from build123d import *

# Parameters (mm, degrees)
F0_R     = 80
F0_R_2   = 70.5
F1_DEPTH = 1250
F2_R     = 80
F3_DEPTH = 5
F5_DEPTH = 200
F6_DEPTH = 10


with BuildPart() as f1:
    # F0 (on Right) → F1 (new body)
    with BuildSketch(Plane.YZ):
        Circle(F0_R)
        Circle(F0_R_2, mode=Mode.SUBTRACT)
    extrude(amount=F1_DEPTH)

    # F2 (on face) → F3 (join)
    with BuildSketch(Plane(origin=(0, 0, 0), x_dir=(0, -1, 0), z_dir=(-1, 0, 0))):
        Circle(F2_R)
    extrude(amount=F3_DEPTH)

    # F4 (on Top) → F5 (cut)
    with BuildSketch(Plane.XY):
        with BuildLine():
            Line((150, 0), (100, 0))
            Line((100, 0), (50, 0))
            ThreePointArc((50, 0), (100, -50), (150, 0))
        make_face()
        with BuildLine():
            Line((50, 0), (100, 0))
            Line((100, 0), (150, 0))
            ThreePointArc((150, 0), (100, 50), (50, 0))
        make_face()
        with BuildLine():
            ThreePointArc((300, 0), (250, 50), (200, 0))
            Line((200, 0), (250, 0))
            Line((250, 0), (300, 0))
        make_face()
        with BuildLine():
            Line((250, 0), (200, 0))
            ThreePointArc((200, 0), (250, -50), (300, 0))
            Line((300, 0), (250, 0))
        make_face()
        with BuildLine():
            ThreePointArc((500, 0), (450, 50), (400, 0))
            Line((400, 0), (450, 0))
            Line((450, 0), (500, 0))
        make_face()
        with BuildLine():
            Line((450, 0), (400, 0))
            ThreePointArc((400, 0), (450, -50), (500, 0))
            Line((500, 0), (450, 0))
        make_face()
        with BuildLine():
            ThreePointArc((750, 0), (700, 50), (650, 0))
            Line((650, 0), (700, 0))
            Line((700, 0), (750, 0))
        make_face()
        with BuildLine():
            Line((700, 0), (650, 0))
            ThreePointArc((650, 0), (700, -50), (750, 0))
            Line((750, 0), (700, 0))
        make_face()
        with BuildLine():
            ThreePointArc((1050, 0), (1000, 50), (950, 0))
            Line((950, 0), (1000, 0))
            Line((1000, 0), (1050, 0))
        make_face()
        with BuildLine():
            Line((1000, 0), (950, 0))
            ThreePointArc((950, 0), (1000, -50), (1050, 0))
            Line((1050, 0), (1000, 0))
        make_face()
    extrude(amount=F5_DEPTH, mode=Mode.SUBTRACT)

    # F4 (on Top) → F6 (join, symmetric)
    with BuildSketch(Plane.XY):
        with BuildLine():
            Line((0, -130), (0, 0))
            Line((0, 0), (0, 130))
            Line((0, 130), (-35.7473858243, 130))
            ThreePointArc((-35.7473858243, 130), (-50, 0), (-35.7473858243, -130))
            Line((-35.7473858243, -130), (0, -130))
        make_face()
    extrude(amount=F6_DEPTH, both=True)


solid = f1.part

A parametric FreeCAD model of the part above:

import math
import FreeCAD as App
import Part
import Sketcher
from FreeCAD import Vector
Q = App.Units.Quantity

doc = App.newDocument("Part")
params = doc.addObject("Spreadsheet::Sheet", "Params")
for row, (alias, value) in enumerate([
    ("sketch1_diameter", "160 mm"),
    ("sketch1_diameter2", "141 mm"),
    ("pad1_length", "1250 mm"),
    ("sketch2_diameter", "160 mm"),
    ("pad2_length", "5 mm"),
    ("sketch3_diameter", "100 mm"),
    ("pocket1_length", "200 mm"),
    ("sketch4_radius", "600 mm"),
    ("sketch4_height", "260 mm"),
    ("pad3_length", "20 mm"),
], start=1):
    params.set(f"A{row}", alias)
    params.set(f"B{row}", "=" + value)
    params.setAlias(f"B{row}", alias)

body = doc.addObject("PartDesign::Body", "Body")

# Sketch on YZ plane
sketch1 = body.newObject("Sketcher::SketchObject", "Sketch")
sketch1.AttachmentSupport = (doc.getObject("YZ_Plane"), [""])
sketch1.MapMode = "FlatFace"
sketch1.addGeometry(Part.Circle(Vector(0, 0, 0), Vector(0, 0, 1), 80), False)
sketch1.addGeometry(Part.Circle(Vector(0, 0, 0), Vector(0, 0, 1), 70), False)
sketch1.addConstraint(Sketcher.Constraint("Coincident", 0, 3, -1, 1))
sketch1.addConstraint(Sketcher.Constraint("Coincident", 1, 3, -1, 1))
sketch1.addConstraint(Sketcher.Constraint("Diameter", 0, Q("160 mm")))
sketch1.addConstraint(Sketcher.Constraint("Diameter", 1, Q("141 mm")))
sketch1.setExpression("Constraints[2]", "Params.sketch1_diameter")
sketch1.setExpression("Constraints[3]", "Params.sketch1_diameter2")
pad1 = body.newObject("PartDesign::Pad", "Pad")
pad1.Profile = sketch1
pad1.setExpression("Length", "Params.pad1_length")

# Sketch on YZ plane
sketch2 = body.newObject("Sketcher::SketchObject", "Sketch001")
sketch2.AttachmentSupport = (doc.getObject("YZ_Plane"), [""])
sketch2.MapMode = "FlatFace"
sketch2.addGeometry(Part.Circle(Vector(0, 0, 0), Vector(0, 0, 1), 80), False)
sketch2.addConstraint(Sketcher.Constraint("Coincident", 0, 3, -1, 1))
sketch2.addConstraint(Sketcher.Constraint("Diameter", 0, Q("160 mm")))
sketch2.setExpression("Constraints[1]", "Params.sketch2_diameter")
pad2 = body.newObject("PartDesign::Pad", "Pad001")
pad2.Profile = sketch2
pad2.setExpression("Length", "Params.pad2_length")
pad2.Reversed = True

# Sketch on XY plane
sketch3 = body.newObject("Sketcher::SketchObject", "Sketch002")
sketch3.AttachmentSupport = (doc.getObject("XY_Plane"), [""])
sketch3.MapMode = "FlatFace"
sketch3.addGeometry(Part.Circle(Vector(100, 0, 0), Vector(0, 0, 1), 50), False)
sketch3.addGeometry(Part.Circle(Vector(250, 0, 0), Vector(0, 0, 1), 50), False)
sketch3.addGeometry(Part.Circle(Vector(450, 0, 0), Vector(0, 0, 1), 50), False)
sketch3.addGeometry(Part.Circle(Vector(700, 0, 0), Vector(0, 0, 1), 50), False)
sketch3.addGeometry(Part.Circle(Vector(1000, 0, 0), Vector(0, 0, 1), 50), False)
sketch3.addConstraint(Sketcher.Constraint("Equal", 0, 1))
sketch3.addConstraint(Sketcher.Constraint("Equal", 1, 2))
sketch3.addConstraint(Sketcher.Constraint("Equal", 2, 3))
sketch3.addConstraint(Sketcher.Constraint("Equal", 3, 4))
sketch3.addConstraint(Sketcher.Constraint("PointOnObject", 0, 3, -1))
sketch3.addConstraint(Sketcher.Constraint("PointOnObject", 1, 3, -1))
sketch3.addConstraint(Sketcher.Constraint("PointOnObject", 2, 3, -1))
sketch3.addConstraint(Sketcher.Constraint("PointOnObject", 3, 3, -1))
sketch3.addConstraint(Sketcher.Constraint("PointOnObject", 4, 3, -1))
sketch3.addConstraint(Sketcher.Constraint("Diameter", 0, Q("100 mm")))
sketch3.addConstraint(Sketcher.Constraint("DistanceX", -1, 1, 0, 3, Q("100 mm")))
sketch3.addConstraint(Sketcher.Constraint("DistanceX", -1, 1, 1, 3, Q("250 mm")))
sketch3.addConstraint(Sketcher.Constraint("DistanceX", -1, 1, 2, 3, Q("450 mm")))
sketch3.addConstraint(Sketcher.Constraint("DistanceX", -1, 1, 3, 3, Q("700 mm")))
sketch3.addConstraint(Sketcher.Constraint("DistanceX", -1, 1, 4, 3, Q("1000 mm")))
sketch3.setExpression("Constraints[9]", "Params.sketch3_diameter")
pocket1 = body.newObject("PartDesign::Pocket", "Pocket")
pocket1.Profile = sketch3
pocket1.setExpression("Length", "Params.pocket1_length")
pocket1.Reversed = True

# Sketch on XY plane
sketch4 = body.newObject("Sketcher::SketchObject", "Sketch003")
sketch4.AttachmentSupport = (doc.getObject("XY_Plane"), [""])
sketch4.MapMode = "FlatFace"
sketch4.addGeometry(Part.LineSegment(Vector(0, -130, 0), Vector(0, 130, 0)), False)
sketch4.addGeometry(Part.LineSegment(Vector(0, 130, 0), Vector(-36, 130, 0)), False)
sketch4.addGeometry(Part.ArcOfCircle(Part.Circle(Vector(550, 0, 0), Vector(0, 0, 1), 600), math.radians(167), math.radians(193)), False)
sketch4.addGeometry(Part.LineSegment(Vector(-36, -130, 0), Vector(0, -130, 0)), False)
sketch4.addConstraint(Sketcher.Constraint("Coincident", 0, 2, 1, 1))
sketch4.addConstraint(Sketcher.Constraint("Coincident", 1, 2, 2, 1))
sketch4.addConstraint(Sketcher.Constraint("Coincident", 2, 2, 3, 1))
sketch4.addConstraint(Sketcher.Constraint("Coincident", 3, 2, 0, 1))
sketch4.addConstraint(Sketcher.Constraint("Vertical", 0))
sketch4.addConstraint(Sketcher.Constraint("Horizontal", 1))
sketch4.addConstraint(Sketcher.Constraint("Horizontal", 3))
sketch4.addConstraint(Sketcher.Constraint("Symmetric", 0, 2, 3, 2, -1, 1))
sketch4.addConstraint(Sketcher.Constraint("PointOnObject", 2, 3, -1))
sketch4.addConstraint(Sketcher.Constraint("Radius", 2, Q("600 mm")))
sketch4.addConstraint(Sketcher.Constraint("DistanceY", 0, 1, 0, 2, Q("260 mm")))
sketch4.addConstraint(Sketcher.Constraint("DistanceX", -1, 1, 2, 3, Q("550 mm")))
sketch4.setExpression("Constraints[9]", "Params.sketch4_radius")
sketch4.setExpression("Constraints[10]", "Params.sketch4_height")
pad3 = body.newObject("PartDesign::Pad", "Pad002")
pad3.Profile = sketch4
pad3.setExpression("Length", "Params.pad3_length")
pad3.Midplane = True

doc.recompute()
